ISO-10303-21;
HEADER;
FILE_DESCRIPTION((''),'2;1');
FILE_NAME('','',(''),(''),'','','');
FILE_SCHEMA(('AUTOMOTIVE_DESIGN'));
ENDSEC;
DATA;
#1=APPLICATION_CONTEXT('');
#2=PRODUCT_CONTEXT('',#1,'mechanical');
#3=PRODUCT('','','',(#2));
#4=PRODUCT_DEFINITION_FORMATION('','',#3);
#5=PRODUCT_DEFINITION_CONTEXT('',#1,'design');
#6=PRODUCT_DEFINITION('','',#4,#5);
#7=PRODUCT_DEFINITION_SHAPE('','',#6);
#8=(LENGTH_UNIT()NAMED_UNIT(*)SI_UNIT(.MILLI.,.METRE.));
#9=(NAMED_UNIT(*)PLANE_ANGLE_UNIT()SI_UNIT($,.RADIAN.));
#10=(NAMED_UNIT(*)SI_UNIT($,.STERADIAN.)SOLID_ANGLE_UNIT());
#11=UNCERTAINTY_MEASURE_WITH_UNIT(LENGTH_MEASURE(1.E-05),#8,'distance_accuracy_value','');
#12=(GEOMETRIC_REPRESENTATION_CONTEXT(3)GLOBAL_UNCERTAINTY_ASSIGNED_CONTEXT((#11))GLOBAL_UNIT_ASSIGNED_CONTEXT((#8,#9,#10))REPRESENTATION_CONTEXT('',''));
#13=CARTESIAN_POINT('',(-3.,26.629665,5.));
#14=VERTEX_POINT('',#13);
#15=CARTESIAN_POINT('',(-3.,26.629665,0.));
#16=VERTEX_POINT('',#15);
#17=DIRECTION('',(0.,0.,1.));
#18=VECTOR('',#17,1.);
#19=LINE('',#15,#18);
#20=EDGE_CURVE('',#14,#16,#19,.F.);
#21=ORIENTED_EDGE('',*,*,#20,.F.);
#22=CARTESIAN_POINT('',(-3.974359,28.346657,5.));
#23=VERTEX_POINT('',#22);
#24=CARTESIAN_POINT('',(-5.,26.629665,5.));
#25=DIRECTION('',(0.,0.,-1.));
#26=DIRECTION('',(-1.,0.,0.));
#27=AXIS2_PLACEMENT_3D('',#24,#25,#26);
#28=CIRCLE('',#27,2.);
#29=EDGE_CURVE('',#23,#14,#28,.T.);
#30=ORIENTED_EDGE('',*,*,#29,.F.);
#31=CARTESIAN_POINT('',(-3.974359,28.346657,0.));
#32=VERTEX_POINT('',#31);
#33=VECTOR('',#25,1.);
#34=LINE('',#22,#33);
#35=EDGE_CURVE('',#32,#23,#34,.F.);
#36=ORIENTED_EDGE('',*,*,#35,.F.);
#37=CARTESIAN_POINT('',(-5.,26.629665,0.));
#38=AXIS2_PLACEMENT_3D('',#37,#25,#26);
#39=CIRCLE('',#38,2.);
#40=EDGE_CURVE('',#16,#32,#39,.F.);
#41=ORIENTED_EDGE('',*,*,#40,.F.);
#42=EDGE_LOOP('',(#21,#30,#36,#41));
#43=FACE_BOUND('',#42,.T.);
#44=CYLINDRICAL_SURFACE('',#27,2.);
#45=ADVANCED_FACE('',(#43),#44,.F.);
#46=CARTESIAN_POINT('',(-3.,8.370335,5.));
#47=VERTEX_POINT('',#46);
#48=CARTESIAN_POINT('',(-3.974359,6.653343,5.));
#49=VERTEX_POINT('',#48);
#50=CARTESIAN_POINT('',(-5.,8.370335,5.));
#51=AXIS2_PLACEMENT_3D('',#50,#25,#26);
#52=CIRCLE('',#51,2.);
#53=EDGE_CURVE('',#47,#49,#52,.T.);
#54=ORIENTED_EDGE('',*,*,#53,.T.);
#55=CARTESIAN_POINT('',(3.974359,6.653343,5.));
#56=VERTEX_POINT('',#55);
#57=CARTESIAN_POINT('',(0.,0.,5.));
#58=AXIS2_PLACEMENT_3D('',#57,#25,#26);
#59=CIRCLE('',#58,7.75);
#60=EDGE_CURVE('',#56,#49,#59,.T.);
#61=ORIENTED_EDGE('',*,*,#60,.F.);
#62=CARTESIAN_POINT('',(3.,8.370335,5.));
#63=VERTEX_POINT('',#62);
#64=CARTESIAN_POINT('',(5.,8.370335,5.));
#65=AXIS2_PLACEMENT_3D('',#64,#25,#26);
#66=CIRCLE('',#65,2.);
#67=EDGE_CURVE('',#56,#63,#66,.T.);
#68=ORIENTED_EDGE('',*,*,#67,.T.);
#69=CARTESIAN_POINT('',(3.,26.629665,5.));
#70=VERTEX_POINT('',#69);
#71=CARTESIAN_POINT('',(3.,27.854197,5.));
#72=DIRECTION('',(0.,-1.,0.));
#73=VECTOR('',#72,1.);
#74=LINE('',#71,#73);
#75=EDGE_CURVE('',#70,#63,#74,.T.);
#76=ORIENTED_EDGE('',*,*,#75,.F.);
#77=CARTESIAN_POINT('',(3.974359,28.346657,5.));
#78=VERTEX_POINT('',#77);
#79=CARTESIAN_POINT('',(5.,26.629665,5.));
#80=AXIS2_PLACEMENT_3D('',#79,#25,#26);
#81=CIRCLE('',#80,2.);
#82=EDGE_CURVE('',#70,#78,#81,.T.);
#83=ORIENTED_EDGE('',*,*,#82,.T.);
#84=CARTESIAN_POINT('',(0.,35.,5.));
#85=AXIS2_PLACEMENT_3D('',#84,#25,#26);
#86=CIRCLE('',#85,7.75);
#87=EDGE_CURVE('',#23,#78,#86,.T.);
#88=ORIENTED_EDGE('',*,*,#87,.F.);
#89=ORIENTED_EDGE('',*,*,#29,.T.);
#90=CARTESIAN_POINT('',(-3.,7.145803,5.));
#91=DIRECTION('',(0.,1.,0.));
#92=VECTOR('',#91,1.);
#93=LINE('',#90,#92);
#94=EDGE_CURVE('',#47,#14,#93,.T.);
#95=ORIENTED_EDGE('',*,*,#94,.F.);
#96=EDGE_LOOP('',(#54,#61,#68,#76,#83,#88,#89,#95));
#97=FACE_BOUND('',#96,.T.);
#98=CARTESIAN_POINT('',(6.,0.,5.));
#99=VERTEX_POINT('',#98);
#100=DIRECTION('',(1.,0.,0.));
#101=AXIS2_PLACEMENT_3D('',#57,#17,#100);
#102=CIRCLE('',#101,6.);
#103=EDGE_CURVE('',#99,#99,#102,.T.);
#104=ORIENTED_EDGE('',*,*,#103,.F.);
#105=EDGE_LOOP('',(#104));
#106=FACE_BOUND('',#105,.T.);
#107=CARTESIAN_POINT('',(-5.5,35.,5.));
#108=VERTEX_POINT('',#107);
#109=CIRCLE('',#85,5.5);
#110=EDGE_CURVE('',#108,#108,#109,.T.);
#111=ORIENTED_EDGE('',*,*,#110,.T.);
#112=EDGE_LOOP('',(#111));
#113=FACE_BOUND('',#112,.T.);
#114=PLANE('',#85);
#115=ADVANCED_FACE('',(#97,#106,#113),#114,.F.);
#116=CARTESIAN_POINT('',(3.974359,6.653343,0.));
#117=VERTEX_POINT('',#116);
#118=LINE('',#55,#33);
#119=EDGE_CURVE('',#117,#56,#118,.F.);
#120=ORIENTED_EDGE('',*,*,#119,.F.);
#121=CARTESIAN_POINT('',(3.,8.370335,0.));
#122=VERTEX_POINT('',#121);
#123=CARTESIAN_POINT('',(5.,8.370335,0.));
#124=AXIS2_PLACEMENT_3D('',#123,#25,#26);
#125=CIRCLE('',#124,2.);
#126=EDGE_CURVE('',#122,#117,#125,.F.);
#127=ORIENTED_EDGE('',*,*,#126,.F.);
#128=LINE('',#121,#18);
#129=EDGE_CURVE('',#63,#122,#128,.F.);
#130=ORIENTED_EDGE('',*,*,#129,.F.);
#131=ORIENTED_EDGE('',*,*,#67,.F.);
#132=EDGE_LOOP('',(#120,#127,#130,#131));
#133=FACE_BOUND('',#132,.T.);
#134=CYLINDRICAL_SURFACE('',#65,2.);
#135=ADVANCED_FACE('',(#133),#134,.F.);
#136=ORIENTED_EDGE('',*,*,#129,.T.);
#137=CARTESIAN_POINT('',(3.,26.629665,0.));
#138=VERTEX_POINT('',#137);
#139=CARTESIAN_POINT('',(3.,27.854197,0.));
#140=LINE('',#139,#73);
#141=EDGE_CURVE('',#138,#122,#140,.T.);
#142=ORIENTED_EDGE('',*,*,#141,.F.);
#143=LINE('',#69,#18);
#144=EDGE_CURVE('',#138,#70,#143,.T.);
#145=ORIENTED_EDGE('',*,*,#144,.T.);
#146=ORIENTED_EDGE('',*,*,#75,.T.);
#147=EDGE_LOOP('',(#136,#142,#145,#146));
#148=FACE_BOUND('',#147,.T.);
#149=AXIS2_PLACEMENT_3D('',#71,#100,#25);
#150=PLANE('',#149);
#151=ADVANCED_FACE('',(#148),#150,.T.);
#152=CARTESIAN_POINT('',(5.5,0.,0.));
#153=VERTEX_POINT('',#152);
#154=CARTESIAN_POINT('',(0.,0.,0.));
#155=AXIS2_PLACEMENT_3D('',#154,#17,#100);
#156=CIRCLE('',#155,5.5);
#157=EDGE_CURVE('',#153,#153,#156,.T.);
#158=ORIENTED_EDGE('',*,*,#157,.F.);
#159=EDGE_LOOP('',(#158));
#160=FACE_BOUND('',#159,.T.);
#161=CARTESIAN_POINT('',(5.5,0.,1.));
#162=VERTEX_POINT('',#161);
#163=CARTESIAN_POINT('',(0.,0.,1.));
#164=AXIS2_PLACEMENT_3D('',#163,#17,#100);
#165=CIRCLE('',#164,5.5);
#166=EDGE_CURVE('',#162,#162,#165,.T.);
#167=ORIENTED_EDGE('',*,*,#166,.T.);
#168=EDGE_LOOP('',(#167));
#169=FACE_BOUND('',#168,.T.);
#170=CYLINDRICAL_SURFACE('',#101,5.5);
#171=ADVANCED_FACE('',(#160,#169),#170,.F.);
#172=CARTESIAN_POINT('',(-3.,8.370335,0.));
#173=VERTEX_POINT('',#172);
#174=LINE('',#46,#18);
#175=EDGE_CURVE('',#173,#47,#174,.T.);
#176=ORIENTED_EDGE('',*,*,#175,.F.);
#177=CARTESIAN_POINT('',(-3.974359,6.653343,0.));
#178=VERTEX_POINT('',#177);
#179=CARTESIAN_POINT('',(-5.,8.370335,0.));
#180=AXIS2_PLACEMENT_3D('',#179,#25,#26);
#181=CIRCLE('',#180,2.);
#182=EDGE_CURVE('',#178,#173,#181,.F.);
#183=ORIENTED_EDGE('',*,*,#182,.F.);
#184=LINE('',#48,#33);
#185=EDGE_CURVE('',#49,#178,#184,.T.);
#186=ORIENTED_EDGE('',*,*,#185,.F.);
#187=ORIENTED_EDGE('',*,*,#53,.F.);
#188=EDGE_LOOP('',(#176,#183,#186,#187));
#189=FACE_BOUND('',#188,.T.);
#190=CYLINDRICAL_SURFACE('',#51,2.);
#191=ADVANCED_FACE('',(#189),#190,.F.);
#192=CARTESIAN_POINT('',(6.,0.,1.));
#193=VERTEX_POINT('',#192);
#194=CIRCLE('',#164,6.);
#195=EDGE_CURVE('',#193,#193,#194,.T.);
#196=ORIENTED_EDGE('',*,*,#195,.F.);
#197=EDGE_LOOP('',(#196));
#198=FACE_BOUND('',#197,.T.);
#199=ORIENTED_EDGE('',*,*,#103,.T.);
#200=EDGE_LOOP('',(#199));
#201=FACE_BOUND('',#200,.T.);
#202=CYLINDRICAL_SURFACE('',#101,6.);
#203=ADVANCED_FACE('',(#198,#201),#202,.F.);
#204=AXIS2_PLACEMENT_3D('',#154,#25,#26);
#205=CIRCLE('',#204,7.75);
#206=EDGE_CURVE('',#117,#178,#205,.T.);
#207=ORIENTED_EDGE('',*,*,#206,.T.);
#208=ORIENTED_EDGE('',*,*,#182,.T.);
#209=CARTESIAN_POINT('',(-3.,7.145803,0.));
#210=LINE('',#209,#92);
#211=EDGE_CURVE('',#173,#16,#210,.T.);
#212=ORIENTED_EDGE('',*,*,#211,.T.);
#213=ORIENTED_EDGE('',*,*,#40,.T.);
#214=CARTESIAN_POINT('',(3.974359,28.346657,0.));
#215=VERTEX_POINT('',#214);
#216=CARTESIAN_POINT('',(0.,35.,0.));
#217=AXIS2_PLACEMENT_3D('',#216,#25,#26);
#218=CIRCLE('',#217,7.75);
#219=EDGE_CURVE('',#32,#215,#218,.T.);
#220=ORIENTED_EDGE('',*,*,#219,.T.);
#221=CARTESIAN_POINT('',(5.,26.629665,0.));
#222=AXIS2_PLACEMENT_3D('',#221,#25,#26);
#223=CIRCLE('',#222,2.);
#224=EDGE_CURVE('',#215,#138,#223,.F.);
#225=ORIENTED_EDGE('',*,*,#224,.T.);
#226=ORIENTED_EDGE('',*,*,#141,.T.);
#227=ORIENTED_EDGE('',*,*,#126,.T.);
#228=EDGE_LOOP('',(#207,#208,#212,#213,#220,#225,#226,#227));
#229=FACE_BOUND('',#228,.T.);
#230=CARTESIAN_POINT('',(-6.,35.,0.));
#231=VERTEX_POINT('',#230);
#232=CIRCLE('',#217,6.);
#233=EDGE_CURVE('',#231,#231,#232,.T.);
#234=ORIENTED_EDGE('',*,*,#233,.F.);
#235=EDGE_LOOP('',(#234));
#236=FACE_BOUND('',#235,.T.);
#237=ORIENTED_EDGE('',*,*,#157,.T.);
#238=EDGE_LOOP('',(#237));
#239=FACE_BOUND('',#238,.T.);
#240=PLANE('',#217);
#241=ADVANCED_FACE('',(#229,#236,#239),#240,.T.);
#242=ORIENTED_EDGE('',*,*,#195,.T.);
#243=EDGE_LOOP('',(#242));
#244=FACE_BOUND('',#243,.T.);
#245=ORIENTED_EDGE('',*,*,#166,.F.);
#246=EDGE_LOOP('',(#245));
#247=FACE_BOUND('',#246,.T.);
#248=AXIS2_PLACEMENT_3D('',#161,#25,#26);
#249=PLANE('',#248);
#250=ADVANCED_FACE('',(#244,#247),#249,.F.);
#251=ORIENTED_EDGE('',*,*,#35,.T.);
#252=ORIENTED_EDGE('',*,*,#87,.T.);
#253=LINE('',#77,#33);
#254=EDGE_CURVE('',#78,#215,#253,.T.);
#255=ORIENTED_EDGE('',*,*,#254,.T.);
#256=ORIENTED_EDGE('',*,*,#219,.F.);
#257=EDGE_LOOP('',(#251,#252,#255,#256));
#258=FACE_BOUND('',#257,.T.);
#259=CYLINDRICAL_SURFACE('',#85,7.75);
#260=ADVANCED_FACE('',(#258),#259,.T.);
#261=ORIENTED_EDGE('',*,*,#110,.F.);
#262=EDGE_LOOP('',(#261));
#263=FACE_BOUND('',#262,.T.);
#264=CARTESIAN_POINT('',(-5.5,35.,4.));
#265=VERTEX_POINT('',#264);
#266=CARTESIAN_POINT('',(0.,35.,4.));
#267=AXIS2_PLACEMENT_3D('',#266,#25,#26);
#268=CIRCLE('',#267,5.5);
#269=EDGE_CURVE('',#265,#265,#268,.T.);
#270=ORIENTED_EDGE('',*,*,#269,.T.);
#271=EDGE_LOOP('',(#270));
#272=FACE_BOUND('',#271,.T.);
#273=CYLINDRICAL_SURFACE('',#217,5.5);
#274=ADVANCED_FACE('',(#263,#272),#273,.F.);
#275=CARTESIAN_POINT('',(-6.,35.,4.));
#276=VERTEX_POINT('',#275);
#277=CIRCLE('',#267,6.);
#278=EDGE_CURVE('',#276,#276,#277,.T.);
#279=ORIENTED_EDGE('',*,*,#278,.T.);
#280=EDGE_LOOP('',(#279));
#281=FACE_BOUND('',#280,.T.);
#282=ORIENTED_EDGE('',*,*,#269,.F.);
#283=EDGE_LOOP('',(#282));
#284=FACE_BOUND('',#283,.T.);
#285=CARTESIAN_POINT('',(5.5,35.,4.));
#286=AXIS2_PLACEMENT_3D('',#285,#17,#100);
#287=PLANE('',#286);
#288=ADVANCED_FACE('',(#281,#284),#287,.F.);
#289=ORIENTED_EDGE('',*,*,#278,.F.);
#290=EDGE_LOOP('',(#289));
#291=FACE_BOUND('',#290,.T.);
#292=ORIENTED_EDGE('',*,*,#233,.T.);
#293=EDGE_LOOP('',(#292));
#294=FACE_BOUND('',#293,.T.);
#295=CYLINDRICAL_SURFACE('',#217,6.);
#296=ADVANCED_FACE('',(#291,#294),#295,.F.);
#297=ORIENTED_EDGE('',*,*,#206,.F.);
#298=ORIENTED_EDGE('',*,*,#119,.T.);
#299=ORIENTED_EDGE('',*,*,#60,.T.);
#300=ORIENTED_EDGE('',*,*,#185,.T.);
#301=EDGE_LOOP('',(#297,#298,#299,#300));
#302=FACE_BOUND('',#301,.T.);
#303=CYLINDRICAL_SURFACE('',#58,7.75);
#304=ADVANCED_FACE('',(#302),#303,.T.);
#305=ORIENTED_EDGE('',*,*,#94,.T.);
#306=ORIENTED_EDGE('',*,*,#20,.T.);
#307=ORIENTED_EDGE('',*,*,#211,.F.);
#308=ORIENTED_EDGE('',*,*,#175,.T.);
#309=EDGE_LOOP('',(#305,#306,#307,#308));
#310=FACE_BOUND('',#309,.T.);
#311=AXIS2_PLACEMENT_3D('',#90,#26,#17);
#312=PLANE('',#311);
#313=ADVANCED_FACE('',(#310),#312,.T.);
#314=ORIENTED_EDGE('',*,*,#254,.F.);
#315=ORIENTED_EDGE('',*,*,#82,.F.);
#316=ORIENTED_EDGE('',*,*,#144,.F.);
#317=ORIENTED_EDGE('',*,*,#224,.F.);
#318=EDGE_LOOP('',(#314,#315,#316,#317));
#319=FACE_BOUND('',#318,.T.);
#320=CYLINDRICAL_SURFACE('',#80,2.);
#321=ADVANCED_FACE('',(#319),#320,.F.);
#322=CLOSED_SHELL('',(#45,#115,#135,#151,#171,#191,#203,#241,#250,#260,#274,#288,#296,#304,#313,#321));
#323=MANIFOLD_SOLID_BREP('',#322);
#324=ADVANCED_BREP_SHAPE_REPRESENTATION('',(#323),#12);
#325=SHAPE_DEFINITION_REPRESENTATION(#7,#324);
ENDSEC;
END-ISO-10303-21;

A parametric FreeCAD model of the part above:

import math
import FreeCAD as App
import Part
import Sketcher

V = App.Vector


def edges_at(feature, points):
    """Names of the edges that pass closest to the given points."""
    edges = feature.Shape.Edges
    near = lambda p: min(range(len(edges)), key=lambda i: edges[i].distToShape(Part.Vertex(*p))[0])
    return sorted({f"Edge{near(p) + 1}" for p in points})

doc = App.newDocument("Part")
body = doc.addObject("PartDesign::Body", "Body")

sketch1 = doc.addObject("Sketcher::SketchObject", "Sketch")
body.addObject(sketch1)
sketch1.AttachmentSupport = (doc.XY_Plane, [""])
sketch1.MapMode = "FlatFace"
sketch1.addGeometry([
    Part.LineSegment(V(3, 27.854197, 0), V(3, 7.145803, 0)),
    Part.ArcOfCircle(Part.Circle(V(0, 0, 0), V(0, 0, 1), 7.75), math.radians(112.773972), math.radians(427.226028)),
    Part.LineSegment(V(-3, 7.145803, 0), V(-3, 27.854197, 0)),
    Part.ArcOfCircle(Part.Circle(V(0, 35, 0), V(0, 0, 1), 7.75), math.radians(-67.226028), math.radians(247.226028)),
], False)
sketch1.addConstraint([
    Sketcher.Constraint("Coincident", 0, 2, 1, 2),
    Sketcher.Constraint("Coincident", 1, 1, 2, 1),
    Sketcher.Constraint("Coincident", 2, 2, 3, 2),
    Sketcher.Constraint("Coincident", 3, 1, 0, 1),
    Sketcher.Constraint("Vertical", 0),
    Sketcher.Constraint("Vertical", 2),
    Sketcher.Constraint("Coincident", 1, 3, -1, 1),
    Sketcher.Constraint("Equal", 1, 3),
    Sketcher.Constraint("Symmetric", 2, 2, 3, 1, -2),
    Sketcher.Constraint("Radius", 1, 7.75),
    Sketcher.Constraint("DistanceY", -1, 1, 3, 3, 35.0),
    Sketcher.Constraint("DistanceX", -1, 1, 0, 2, 3.0),
])
pad1 = doc.addObject("PartDesign::Pad", "Pad")
body.addObject(pad1)
pad1.Profile = sketch1
pad1.Length = 5

sketch2 = doc.addObject("Sketcher::SketchObject", "Sketch001")
body.addObject(sketch2)
sketch2.AttachmentSupport = (doc.XY_Plane, [""])
sketch2.MapMode = "FlatFace"
sketch2.addGeometry(Part.Circle(V(0, 35, 0), V(0, 0, 1), 5.5), False)
sketch2.addConstraint([
    Sketcher.Constraint("PointOnObject", 0, 3, -2),
    Sketcher.Constraint("Diameter", 0, 11.0),
    Sketcher.Constraint("DistanceY", -1, 1, 0, 3, 35.0),
])
doc.recompute()
hole = doc.addObject("PartDesign::Hole", "Hole")
body.addObject(hole)
hole.Profile = sketch2
hole.ThreadType = "None"
hole.Diameter = 11
hole.DepthType = "ThroughAll"
hole.HoleCutType = "Counterbore"
hole.HoleCutDiameter = 12
hole.HoleCutDepth = 4
hole.Reversed = True

sketch3 = doc.addObject("Sketcher::SketchObject", "Sketch002")
body.addObject(sketch3)
sketch3.AttachmentSupport = (doc.XY_Plane, [""])
sketch3.MapMode = "FlatFace"
sketch3.AttachmentOffset = App.Placement(V(0, 0, 5), App.Rotation())
sketch3.addGeometry(Part.Circle(V(0, 0, 0), V(0, 0, 1), 5.5), False)
sketch3.addConstraint([
    Sketcher.Constraint("Coincident", 0, 3, -1, 1),
    Sketcher.Constraint("Diameter", 0, 11.0),
])
doc.recompute()
hole2 = doc.addObject("PartDesign::Hole", "Hole001")
body.addObject(hole2)
hole2.Profile = sketch3
hole2.ThreadType = "None"
hole2.Diameter = 11
hole2.DepthType = "ThroughAll"
hole2.HoleCutType = "Counterbore"
hole2.HoleCutDiameter = 12
hole2.HoleCutDepth = 4
doc.recompute()

fillet = doc.addObject("PartDesign::Fillet", "Fillet")
body.addObject(fillet)
fillet.Base = (hole2, edges_at(hole2, [
    (-3, 27.854, 2.5),
    (-3, 7.146, 2.5),
    (3, 7.146, 2.5),
    (3, 27.854, 2.5),
]))
fillet.Radius = 2

doc.recompute()
